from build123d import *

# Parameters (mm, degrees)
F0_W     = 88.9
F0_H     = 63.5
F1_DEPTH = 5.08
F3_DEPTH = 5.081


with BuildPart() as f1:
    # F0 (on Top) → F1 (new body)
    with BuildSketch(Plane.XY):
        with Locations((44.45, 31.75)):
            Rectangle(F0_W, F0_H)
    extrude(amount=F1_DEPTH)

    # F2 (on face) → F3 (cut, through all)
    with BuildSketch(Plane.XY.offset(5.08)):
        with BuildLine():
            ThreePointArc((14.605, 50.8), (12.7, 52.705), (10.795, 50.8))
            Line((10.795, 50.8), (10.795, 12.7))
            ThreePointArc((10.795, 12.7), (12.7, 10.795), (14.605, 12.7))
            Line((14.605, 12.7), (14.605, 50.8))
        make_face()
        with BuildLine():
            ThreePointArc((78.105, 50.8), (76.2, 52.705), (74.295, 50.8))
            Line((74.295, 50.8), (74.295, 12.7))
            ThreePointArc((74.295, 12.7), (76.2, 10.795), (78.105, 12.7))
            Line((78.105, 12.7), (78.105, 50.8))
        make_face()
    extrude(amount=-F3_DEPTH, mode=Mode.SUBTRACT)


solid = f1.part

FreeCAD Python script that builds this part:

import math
import FreeCAD as App
import Part
import Sketcher
from FreeCAD import Vector
Q = App.Units.Quantity

doc = App.newDocument("Part")
body = doc.addObject("PartDesign::Body", "Body")

# Sketch on XY plane
sketch1 = body.newObject("Sketcher::SketchObject", "Sketch")
sketch1.AttachmentSupport = (doc.getObject("XY_Plane"), [""])
sketch1.MapMode = "FlatFace"
sketch1.addGeometry(Part.LineSegment(Vector(0, 64, 0), Vector(0, 0, 0)), False)
sketch1.addGeometry(Part.LineSegment(Vector(0, 0, 0), Vector(89, 0, 0)), False)
sketch1.addGeometry(Part.LineSegment(Vector(89, 0, 0), Vector(89, 64, 0)), False)
sketch1.addGeometry(Part.LineSegment(Vector(89, 64, 0), Vector(0, 64, 0)), False)
sketch1.addConstraint(Sketcher.Constraint("Coincident", 0, 2, 1, 1))
sketch1.addConstraint(Sketcher.Constraint("Coincident", 1, 2, 2, 1))
sketch1.addConstraint(Sketcher.Constraint("Coincident", 2, 2, 3, 1))
sketch1.addConstraint(Sketcher.Constraint("Coincident", 3, 2, 0, 1))
sketch1.addConstraint(Sketcher.Constraint("Vertical", 0))
sketch1.addConstraint(Sketcher.Constraint("Horizontal", 1))
sketch1.addConstraint(Sketcher.Constraint("Vertical", 2))
sketch1.addConstraint(Sketcher.Constraint("Horizontal", 3))
sketch1.addConstraint(Sketcher.Constraint("Coincident", 0, 2, -1, 1))
sketch1.addConstraint(Sketcher.Constraint("DistanceX", 1, 1, 1, 2, Q("3.5 in")))
sketch1.addConstraint(Sketcher.Constraint("DistanceY", 0, 2, 0, 1, Q("2.5 in")))
pad1 = body.newObject("PartDesign::Pad", "Pad")
pad1.Profile = sketch1
pad1.Length = Q("0.2 in")

# Sketch on XY plane
sketch2 = body.newObject("Sketcher::SketchObject", "Sketch001")
sketch2.AttachmentSupport = (doc.getObject("XY_Plane"), [""])
sketch2.MapMode = "FlatFace"
sketch2.AttachmentOffset = App.Placement(Vector(0, 0, 0.2 * 25.4), App.Rotation())
sketch2.addGeometry(Part.ArcOfCircle(Part.Circle(Vector(12.7, 50.8, 0), Vector(0, 0, 1), 1.9), math.radians(0), math.radians(180)), False)
sketch2.addGeometry(Part.LineSegment(Vector(10.8, 50.8, 0), Vector(10.8, 12.7, 0)), False)
sketch2.addGeometry(Part.ArcOfCircle(Part.Circle(Vector(12.7, 12.7, 0), Vector(0, 0, 1), 1.9), math.radians(180), math.radians(360)), False)
sketch2.addGeometry(Part.LineSegment(Vector(14.6, 12.7, 0), Vector(14.6, 50.8, 0)), False)
sketch2.addGeometry(Part.ArcOfCircle(Part.Circle(Vector(76.2, 50.8, 0), Vector(0, 0, 1), 1.9), math.radians(0), math.radians(180)), False)
sketch2.addGeometry(Part.LineSegment(Vector(74.3, 50.8, 0), Vector(74.3, 12.7, 0)), False)
sketch2.addGeometry(Part.ArcOfCircle(Part.Circle(Vector(76.2, 12.7, 0), Vector(0, 0, 1), 1.9), math.radians(180), math.radians(360)), False)
sketch2.addGeometry(Part.LineSegment(Vector(78.1, 12.7, 0), Vector(78.1, 50.8, 0)), False)
sketch2.addConstraint(Sketcher.Constraint("Tangent", 0, 2, 1, 1))
sketch2.addConstraint(Sketcher.Constraint("Tangent", 1, 2, 2, 1))
sketch2.addConstraint(Sketcher.Constraint("Tangent", 2, 2, 3, 1))
sketch2.addConstraint(Sketcher.Constraint("Tangent", 3, 2, 0, 1))
sketch2.addConstraint(Sketcher.Constraint("Tangent", 4, 2, 5, 1))
sketch2.addConstraint(Sketcher.Constraint("Tangent", 5, 2, 6, 1))
sketch2.addConstraint(Sketcher.Constraint("Tangent", 6, 2, 7, 1))
sketch2.addConstraint(Sketcher.Constraint("Tangent", 7, 2, 4, 1))
sketch2.addConstraint(Sketcher.Constraint("Vertical", 1))
sketch2.addConstraint(Sketcher.Constraint("Vertical", 3))
sketch2.addConstraint(Sketcher.Constraint("Vertical", 5))
sketch2.addConstraint(Sketcher.Constraint("Vertical", 7))
sketch2.addConstraint(Sketcher.Constraint("Equal", 2, 4))
sketch2.addConstraint(Sketcher.Constraint("Horizontal", 0, 3, 4, 3))
sketch2.addConstraint(Sketcher.Constraint("Horizontal", 2, 3, 6, 3))
sketch2.addConstraint(Sketcher.Constraint("DistanceY", 1, 2, 1, 1, Q("1.5 in")))
sketch2.addConstraint(Sketcher.Constraint("DistanceY", -1, 1, 0, 3, Q("2 in")))
sketch2.addConstraint(Sketcher.Constraint("DistanceX", -1, 1, 4, 3, Q("3 in")))
sketch2.addConstraint(Sketcher.Constraint("Radius", 0, Q("0.075 in")))
sketch2.addConstraint(Sketcher.Constraint("DistanceX", -1, 1, 0, 3, Q("0.5 in")))
pocket1 = body.newObject("PartDesign::Pocket", "Pocket")
pocket1.Profile = sketch2
pocket1.Type = "ThroughAll"

doc.recompute()
